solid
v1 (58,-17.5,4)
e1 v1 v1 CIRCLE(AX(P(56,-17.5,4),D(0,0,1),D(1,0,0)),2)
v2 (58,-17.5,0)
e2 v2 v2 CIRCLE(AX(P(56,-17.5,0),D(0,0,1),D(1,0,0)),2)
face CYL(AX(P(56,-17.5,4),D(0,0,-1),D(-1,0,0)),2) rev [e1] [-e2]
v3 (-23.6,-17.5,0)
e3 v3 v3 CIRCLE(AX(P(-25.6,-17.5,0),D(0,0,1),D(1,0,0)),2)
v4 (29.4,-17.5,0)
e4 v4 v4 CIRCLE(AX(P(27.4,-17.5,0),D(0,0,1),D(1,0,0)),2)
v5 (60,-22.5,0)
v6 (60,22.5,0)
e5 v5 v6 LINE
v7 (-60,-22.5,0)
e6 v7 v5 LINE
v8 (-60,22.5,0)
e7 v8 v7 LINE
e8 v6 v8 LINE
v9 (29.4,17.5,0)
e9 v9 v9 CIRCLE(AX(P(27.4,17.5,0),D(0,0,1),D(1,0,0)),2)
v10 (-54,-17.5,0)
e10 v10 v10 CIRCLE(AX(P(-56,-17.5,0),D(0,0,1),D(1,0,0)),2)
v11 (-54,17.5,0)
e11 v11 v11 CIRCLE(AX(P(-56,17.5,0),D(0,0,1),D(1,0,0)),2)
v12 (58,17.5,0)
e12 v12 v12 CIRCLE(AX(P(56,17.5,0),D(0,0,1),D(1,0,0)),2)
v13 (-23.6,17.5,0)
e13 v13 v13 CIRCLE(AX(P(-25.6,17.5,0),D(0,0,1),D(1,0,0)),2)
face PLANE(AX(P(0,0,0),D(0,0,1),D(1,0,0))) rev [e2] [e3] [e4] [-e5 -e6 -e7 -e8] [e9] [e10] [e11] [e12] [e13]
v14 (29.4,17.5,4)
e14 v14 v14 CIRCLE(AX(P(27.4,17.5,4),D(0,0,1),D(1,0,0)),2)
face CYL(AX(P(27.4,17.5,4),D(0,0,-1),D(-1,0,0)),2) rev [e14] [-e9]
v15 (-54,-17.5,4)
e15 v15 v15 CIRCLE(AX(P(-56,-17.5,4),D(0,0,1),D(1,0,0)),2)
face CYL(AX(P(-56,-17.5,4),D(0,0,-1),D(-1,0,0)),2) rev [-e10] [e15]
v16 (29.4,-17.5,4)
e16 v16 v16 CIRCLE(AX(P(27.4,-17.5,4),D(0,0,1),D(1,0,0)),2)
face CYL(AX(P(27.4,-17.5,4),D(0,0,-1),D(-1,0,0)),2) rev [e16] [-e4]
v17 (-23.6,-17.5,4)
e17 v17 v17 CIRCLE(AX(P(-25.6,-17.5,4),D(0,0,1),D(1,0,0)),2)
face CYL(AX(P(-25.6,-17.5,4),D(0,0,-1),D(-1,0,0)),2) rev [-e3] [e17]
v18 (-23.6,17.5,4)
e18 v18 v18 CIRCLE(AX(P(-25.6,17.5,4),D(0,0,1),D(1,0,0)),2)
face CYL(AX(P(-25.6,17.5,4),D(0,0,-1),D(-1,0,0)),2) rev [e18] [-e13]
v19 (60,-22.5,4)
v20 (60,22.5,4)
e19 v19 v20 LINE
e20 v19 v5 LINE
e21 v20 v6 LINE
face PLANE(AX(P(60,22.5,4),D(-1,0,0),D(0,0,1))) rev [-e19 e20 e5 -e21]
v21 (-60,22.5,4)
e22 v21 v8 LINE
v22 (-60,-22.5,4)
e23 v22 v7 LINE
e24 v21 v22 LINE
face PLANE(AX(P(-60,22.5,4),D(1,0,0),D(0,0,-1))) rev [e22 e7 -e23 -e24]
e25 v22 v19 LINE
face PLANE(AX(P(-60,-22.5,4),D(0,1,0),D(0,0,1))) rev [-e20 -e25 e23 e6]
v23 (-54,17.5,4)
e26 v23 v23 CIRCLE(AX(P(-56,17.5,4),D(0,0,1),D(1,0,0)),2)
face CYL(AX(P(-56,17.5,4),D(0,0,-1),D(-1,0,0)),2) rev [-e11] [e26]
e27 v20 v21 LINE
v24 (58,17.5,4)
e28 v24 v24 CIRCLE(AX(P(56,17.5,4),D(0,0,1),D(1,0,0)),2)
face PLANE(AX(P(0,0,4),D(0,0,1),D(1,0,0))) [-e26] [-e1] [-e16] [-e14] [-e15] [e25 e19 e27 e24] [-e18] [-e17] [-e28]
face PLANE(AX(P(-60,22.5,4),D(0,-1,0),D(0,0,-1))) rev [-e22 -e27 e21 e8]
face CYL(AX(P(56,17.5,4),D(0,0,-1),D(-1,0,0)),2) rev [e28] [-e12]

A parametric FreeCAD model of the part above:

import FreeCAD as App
import Part
import Sketcher
from FreeCAD import Vector

doc = App.newDocument("Part")
body = doc.addObject("PartDesign::Body", "Body")

# Sketch on XY plane
sketch1 = doc.addObject("Sketcher::SketchObject", "Sketch")
body.addObject(sketch1)
sketch1.AttachmentSupport = (doc.XY_Plane, [""])
sketch1.MapMode = "FlatFace"
sketch1.addGeometry([
    Part.LineSegment(Vector(-60, 22.5, 0), Vector(-60, -22.5, 0)),  # 0
    Part.LineSegment(Vector(-60, -22.5, 0), Vector(60, -22.5, 0)),  # 1
    Part.LineSegment(Vector(60, -22.5, 0), Vector(60, 22.5, 0)),  # 2
    Part.LineSegment(Vector(60, 22.5, 0), Vector(-60, 22.5, 0)),  # 3
    Part.Circle(Vector(-56, -17.5, 0), Vector(0, 0, 1), 2),  # 4
    Part.Circle(Vector(-25.6, -17.5, 0), Vector(0, 0, 1), 2),  # 5
    Part.Circle(Vector(27.4, -17.5, 0), Vector(0, 0, 1), 2),  # 6
    Part.Circle(Vector(56, -17.5, 0), Vector(0, 0, 1), 2),  # 7
    Part.Circle(Vector(-56, 17.5, 0), Vector(0, 0, 1), 2),  # 8
    Part.Circle(Vector(-25.6, 17.5, 0), Vector(0, 0, 1), 2),  # 9
    Part.Circle(Vector(27.4, 17.5, 0), Vector(0, 0, 1), 2),  # 10
    Part.Circle(Vector(56, 17.5, 0), Vector(0, 0, 1), 2),  # 11
], False)
sketch1.addConstraint([
    Sketcher.Constraint("Coincident", 0, 2, 1, 1),
    Sketcher.Constraint("Coincident", 1, 2, 2, 1),
    Sketcher.Constraint("Coincident", 2, 2, 3, 1),
    Sketcher.Constraint("Coincident", 3, 2, 0, 1),
    Sketcher.Constraint("Vertical", 0),
    Sketcher.Constraint("Horizontal", 1),
    Sketcher.Constraint("Vertical", 2),
    Sketcher.Constraint("Horizontal", 3),
    Sketcher.Constraint("Equal", 4, 5),
    Sketcher.Constraint("Equal", 5, 6),
    Sketcher.Constraint("Equal", 6, 7),
    Sketcher.Constraint("Equal", 7, 8),
    Sketcher.Constraint("Equal", 8, 9),
    Sketcher.Constraint("Equal", 9, 10),
    Sketcher.Constraint("Equal", 10, 11),
    Sketcher.Constraint("Symmetric", 7, 3, 8, 3, -1, 1),
    Sketcher.Constraint("Symmetric", 4, 3, 11, 3, -1, 1),
    Sketcher.Constraint("Symmetric", 0, 2, 2, 2, -1, 1),
    Sketcher.Constraint("Symmetric", 4, 3, 7, 3, -2),
    Sketcher.Constraint("Symmetric", 5, 3, 9, 3, -1),
    Sketcher.Constraint("Symmetric", 6, 3, 10, 3, -1),
    Sketcher.Constraint("Horizontal", 4, 3, 5, 3),
    Sketcher.Constraint("Horizontal", 5, 3, 6, 3),
    Sketcher.Constraint("Diameter", 4, 4.0),
    Sketcher.Constraint("DistanceX", 1, 1, 1, 2, 120.0),
    Sketcher.Constraint("DistanceY", 0, 2, 0, 1, 45.0),
    Sketcher.Constraint("DistanceX", 4, 3, -1, 1, 56.0),
    Sketcher.Constraint("DistanceX", 5, 3, 6, 3, 53.0),
    Sketcher.Constraint("DistanceY", 4, 3, 8, 3, 35.0),
    Sketcher.Constraint("DistanceX", 5, 3, -1, 1, 25.6),
])
pad1 = doc.addObject("PartDesign::Pad", "Pad")
body.addObject(pad1)
pad1.Profile = sketch1
pad1.Length = 4

doc.recompute()
